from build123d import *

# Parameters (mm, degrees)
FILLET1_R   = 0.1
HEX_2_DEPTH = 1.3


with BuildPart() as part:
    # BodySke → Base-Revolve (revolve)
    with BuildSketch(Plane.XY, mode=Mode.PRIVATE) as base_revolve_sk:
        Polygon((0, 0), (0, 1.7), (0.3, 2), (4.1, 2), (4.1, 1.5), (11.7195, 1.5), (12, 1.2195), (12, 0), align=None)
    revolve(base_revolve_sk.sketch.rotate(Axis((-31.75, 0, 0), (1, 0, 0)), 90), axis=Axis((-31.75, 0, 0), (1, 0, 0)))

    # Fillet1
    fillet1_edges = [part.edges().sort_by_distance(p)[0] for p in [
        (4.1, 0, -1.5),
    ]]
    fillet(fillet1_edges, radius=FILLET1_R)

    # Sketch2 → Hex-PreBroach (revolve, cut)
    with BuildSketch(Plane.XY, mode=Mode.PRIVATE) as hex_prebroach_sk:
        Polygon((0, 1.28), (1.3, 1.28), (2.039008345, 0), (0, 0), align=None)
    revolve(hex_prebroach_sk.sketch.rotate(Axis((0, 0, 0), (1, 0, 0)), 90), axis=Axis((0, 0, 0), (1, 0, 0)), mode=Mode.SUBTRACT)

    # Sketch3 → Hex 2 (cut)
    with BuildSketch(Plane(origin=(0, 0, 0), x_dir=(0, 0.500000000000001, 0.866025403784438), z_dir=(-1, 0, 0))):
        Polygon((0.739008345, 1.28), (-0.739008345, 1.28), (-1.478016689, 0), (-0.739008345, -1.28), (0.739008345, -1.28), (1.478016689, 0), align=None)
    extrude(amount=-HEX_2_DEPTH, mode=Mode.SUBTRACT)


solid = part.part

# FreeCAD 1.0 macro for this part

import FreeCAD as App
import Part
import Sketcher

V = App.Vector
Q = App.Units.Quantity


def edges_at(feature, points):
    """Names of the edges that pass closest to the given points."""
    edges = feature.Shape.Edges
    near = lambda p: min(range(len(edges)), key=lambda i: edges[i].distToShape(Part.Vertex(*p))[0])
    return sorted({f"Edge{near(p) + 1}" for p in points})


def add_polygon(sketch, points):
    """Adds a closed chain of lines whose ends are joined by coincident constraints."""
    first, n = sketch.GeometryCount, len(points)
    for a, b in zip(points, points[1:] + points[:1]):
        sketch.addGeometry(Part.LineSegment(App.Vector(*a, 0), App.Vector(*b, 0)), False)
    for i in range(n):
        sketch.addConstraint(Sketcher.Constraint("Coincident", first + i, 2, first + (i + 1) % n, 1))

doc = App.newDocument("Part")
body = doc.addObject("PartDesign::Body", "Body")

# Sketch on XY plane
sketch1 = doc.addObject("Sketcher::SketchObject", "Sketch")
body.addObject(sketch1)
sketch1.AttachmentSupport = (doc.XY_Plane, [""])
sketch1.MapMode = "FlatFace"
add_polygon(sketch1, [(0, 1.7), (0, 0), (12, 0), (12, 1.2195), (11.7195, 1.5), (4.1, 1.5), (4.1, 2), (0.3, 2)])  # lines 0-7
sketch1.addConstraint([
    Sketcher.Constraint("Vertical", 0),
    Sketcher.Constraint("Horizontal", 1),
    Sketcher.Constraint("Vertical", 2),
    Sketcher.Constraint("Horizontal", 4),
    Sketcher.Constraint("Vertical", 5),
    Sketcher.Constraint("Horizontal", 6),
    Sketcher.Constraint("Coincident", 0, 2, -1, 1),
    Sketcher.Constraint("Perpendicular", 3, 7),
    Sketcher.Constraint("DistanceX", 1, 1, 1, 2, 12.0),
    Sketcher.Constraint("Angle", 3, Q("135 deg")),
    Sketcher.Constraint("DistanceX", 6, 2, 6, 1, 3.8),
    Sketcher.Constraint("DistanceY", 0, 2, 0, 1, 1.7),
    Sketcher.Constraint("DistanceY", 5, 1, 5, 2, 0.5),
    Sketcher.Constraint("DistanceY", -1, 1, 5, 2, 2.0),
    Sketcher.Constraint("DistanceX", 4, 2, 4, 1, 7.6195),
])
revolution = doc.addObject("PartDesign::Revolution", "Revolution")
body.addObject(revolution)
revolution.Profile = sketch1
revolution.ReferenceAxis = (sketch1, ["H_Axis"])
revolution.Angle = 360
doc.recompute()

fillet = doc.addObject("PartDesign::Fillet", "Fillet")
body.addObject(fillet)
fillet.Base = (revolution, edges_at(revolution, [(4.1, 0, -1.5)]))
fillet.Radius = 0.1

# Sketch on XY plane
sketch2 = doc.addObject("Sketcher::SketchObject", "Sketch001")
body.addObject(sketch2)
sketch2.AttachmentSupport = (doc.XY_Plane, [""])
sketch2.MapMode = "FlatFace"
add_polygon(sketch2, [(1.3, 1.28), (0, 1.28), (0, 0), (2.039008, 0)])  # lines 0-3
sketch2.addConstraint([
    Sketcher.Constraint("Horizontal", 0),
    Sketcher.Constraint("Vertical", 1),
    Sketcher.Constraint("Horizontal", 2),
    Sketcher.Constraint("Coincident", 1, 2, -1, 1),
    Sketcher.Constraint("Angle", 3, Q("120 deg")),
    Sketcher.Constraint("DistanceX", 0, 2, 0, 1, 1.3),
    Sketcher.Constraint("DistanceY", 1, 2, 1, 1, 1.28),
])
groove = doc.addObject("PartDesign::Groove", "Groove")
body.addObject(groove)
groove.Profile = sketch2
groove.ReferenceAxis = (sketch2, ["H_Axis"])
groove.Angle = 360

# Sketch on YZ plane
sketch3 = doc.addObject("Sketcher::SketchObject", "Sketch002")
body.addObject(sketch3)
sketch3.AttachmentSupport = (doc.YZ_Plane, [""])
sketch3.MapMode = "FlatFace"
add_polygon(sketch3, [(1.478017, 0), (0.739008, -1.28), (-0.739008, -1.28), (-1.478017, 0), (-0.739008, 1.28), (0.739008, 1.28)])  # lines 0-5
sketch3.addConstraint([
    Sketcher.Constraint("Horizontal", 1),
    Sketcher.Constraint("Horizontal", 4),
    Sketcher.Constraint("Symmetric", 0, 2, 3, 2, -1, 1),
    Sketcher.Constraint("Symmetric", 2, 2, 5, 2, -1, 1),
    Sketcher.Constraint("PointOnObject", 2, 2, -1),
    Sketcher.Constraint("Parallel", 2, 5),
    Sketcher.Constraint("Vertical", 1, 2, 3, 2),
    Sketcher.Constraint("Angle", 0, Q("-120 deg")),
    Sketcher.Constraint("DistanceY", 0, 2, -1, 1, 1.28),
    Sketcher.Constraint("DistanceX", 1, 2, 1, 1, 1.478017),
])
pocket1 = doc.addObject("PartDesign::Pocket", "Pocket")
body.addObject(pocket1)
pocket1.Profile = sketch3
pocket1.Length = 1.3
pocket1.Reversed = True

doc.recompute()
